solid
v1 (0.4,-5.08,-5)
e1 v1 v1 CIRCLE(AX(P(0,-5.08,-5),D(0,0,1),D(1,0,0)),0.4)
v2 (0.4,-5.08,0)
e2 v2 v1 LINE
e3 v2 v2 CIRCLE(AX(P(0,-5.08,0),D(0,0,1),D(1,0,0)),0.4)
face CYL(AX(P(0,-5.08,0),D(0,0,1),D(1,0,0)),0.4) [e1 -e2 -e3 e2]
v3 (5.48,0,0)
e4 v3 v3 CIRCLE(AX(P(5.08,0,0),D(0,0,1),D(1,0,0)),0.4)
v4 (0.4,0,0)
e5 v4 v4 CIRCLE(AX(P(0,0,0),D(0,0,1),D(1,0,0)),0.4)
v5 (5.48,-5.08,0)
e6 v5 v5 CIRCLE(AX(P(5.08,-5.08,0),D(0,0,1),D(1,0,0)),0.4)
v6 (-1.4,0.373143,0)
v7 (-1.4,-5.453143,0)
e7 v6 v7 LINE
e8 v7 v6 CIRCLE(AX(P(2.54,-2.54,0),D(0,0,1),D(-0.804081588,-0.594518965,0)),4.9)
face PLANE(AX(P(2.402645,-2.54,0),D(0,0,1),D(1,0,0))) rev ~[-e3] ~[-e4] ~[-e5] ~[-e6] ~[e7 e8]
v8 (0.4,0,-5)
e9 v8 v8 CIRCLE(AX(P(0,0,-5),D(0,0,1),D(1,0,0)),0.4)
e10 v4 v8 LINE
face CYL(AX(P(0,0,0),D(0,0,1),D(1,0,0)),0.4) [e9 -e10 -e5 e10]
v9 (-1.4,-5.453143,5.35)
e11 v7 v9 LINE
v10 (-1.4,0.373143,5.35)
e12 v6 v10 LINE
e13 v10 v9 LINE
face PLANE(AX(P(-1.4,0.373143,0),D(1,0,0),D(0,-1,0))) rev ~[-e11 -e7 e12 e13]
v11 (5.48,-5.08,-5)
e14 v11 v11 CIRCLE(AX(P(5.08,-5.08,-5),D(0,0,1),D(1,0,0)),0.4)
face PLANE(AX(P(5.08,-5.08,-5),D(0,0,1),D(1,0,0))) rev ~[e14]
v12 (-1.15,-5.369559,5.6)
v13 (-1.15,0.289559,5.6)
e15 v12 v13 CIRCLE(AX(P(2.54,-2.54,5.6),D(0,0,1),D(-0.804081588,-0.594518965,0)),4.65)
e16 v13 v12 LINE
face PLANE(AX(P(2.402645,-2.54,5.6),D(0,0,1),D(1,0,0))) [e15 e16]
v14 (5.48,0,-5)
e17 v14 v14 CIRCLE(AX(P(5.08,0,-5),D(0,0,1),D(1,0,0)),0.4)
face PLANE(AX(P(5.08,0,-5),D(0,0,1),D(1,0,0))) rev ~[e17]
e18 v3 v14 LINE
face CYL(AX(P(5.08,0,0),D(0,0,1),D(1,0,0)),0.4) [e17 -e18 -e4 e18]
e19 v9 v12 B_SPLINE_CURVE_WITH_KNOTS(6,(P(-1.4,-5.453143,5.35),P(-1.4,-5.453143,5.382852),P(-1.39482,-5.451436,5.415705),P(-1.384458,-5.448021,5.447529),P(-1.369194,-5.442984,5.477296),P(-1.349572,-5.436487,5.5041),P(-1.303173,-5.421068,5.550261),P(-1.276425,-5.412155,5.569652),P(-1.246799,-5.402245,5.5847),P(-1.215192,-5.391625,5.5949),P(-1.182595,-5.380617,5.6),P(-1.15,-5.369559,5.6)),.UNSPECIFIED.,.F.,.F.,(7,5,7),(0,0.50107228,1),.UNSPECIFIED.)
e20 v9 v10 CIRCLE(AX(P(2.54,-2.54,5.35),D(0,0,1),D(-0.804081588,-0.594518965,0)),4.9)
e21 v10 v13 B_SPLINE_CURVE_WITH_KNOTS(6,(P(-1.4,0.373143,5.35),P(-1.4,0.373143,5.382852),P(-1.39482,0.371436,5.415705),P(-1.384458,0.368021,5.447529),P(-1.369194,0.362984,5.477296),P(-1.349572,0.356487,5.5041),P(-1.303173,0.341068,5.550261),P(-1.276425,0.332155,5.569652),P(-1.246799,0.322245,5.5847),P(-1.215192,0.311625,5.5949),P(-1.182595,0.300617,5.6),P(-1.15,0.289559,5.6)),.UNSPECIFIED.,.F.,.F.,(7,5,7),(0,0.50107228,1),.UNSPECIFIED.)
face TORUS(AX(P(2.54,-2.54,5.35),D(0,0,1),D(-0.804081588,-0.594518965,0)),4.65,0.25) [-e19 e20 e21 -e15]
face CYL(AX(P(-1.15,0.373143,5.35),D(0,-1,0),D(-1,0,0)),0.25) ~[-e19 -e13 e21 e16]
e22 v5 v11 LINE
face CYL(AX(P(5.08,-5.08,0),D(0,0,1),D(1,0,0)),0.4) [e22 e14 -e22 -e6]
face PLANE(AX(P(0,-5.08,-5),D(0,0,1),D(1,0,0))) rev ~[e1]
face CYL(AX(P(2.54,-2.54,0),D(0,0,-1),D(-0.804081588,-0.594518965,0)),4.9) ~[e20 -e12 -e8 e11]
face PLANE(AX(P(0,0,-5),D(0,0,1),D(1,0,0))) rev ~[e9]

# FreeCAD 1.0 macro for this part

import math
import FreeCAD as App
import Part
import Sketcher
from FreeCAD import Vector


def edges_at(feature, points):
    """Names of the edges that pass closest to the given points."""
    edges = feature.Shape.Edges
    near = lambda p: min(range(len(edges)), key=lambda i: edges[i].distToShape(Part.Vertex(*p))[0])
    return sorted({f"Edge{near(p) + 1}" for p in points})

doc = App.newDocument("Part")
params = doc.addObject("Spreadsheet::Sheet", "Params")
for row, (alias, value) in enumerate([
    ("sketch1_radius", "4.9 mm"),
    ("pad1_length", "5.6 mm"),
    ("fillet_radius", "0.25 mm"),
    ("sketch2_diameter", "0.8 mm"),
    ("pad2_length", "5 mm"),
], start=1):
    params.set(f"A{row}", alias)
    params.set(f"B{row}", "=" + value)
    params.setAlias(f"B{row}", alias)

body = doc.addObject("PartDesign::Body", "Body")

# Sketch on XY plane
sketch1 = body.newObject("Sketcher::SketchObject", "Sketch")
sketch1.AttachmentSupport = (doc.getObject("XY_Plane"), [""])
sketch1.MapMode = "FlatFace"
sketch1.addGeometry(Part.LineSegment(Vector(-1.4, 0.373143, 0), Vector(-1.4, -5.453143, 0)), False)
sketch1.addGeometry(Part.ArcOfCircle(Part.Circle(Vector(2.54, -2.54, 0), Vector(0, 0, 1), 4.9), math.radians(-143.521652), math.radians(143.521652)), False)
sketch1.addConstraint(Sketcher.Constraint("Coincident", 0, 1, 1, 2))
sketch1.addConstraint(Sketcher.Constraint("Coincident", 1, 1, 0, 2))
sketch1.addConstraint(Sketcher.Constraint("Vertical", 0))
sketch1.addConstraint(Sketcher.Constraint("Radius", 1, 4.9))
sketch1.addConstraint(Sketcher.Constraint("DistanceX", 0, 1, -1, 1, 1.4))
sketch1.addConstraint(Sketcher.Constraint("DistanceX", -1, 1, 1, 3, 2.54))
sketch1.addConstraint(Sketcher.Constraint("DistanceY", 1, 3, -1, 1, 2.54))
sketch1.setExpression("Constraints[3]", "Params.sketch1_radius")
pad1 = body.newObject("PartDesign::Pad", "Pad")
pad1.Profile = sketch1
pad1.setExpression("Length", "Params.pad1_length")
doc.recompute()

fillet = body.newObject("PartDesign::Fillet", "Fillet")
fillet.Base = (pad1, edges_at(pad1, [(-1.4, -2.54, 5.6), (7.44, -2.54, 5.6)]))
fillet.setExpression("Radius", "Params.fillet_radius")
body2 = doc.addObject("PartDesign::Body", "Body001")
body2.AllowCompound = True

# Sketch on XY plane
sketch2 = body2.newObject("Sketcher::SketchObject", "Sketch001")
sketch2.AttachmentSupport = (doc.getObject("XY_Plane001"), [""])
sketch2.MapMode = "FlatFace"
sketch2.addGeometry(Part.Circle(Vector(0, 0, 0), Vector(0, 0, 1), 0.4), False)
sketch2.addGeometry(Part.Circle(Vector(5.08, 0, 0), Vector(0, 0, 1), 0.4), False)
sketch2.addGeometry(Part.Circle(Vector(5.08, -5.08, 0), Vector(0, 0, 1), 0.4), False)
sketch2.addGeometry(Part.Circle(Vector(0, -5.08, 0), Vector(0, 0, 1), 0.4), False)
sketch2.addConstraint(Sketcher.Constraint("Coincident", 0, 3, -1, 1))
sketch2.addConstraint(Sketcher.Constraint("Equal", 0, 1))
sketch2.addConstraint(Sketcher.Constraint("Equal", 1, 2))
sketch2.addConstraint(Sketcher.Constraint("Equal", 2, 3))
sketch2.addConstraint(Sketcher.Constraint("PointOnObject", 1, 3, -1))
sketch2.addConstraint(Sketcher.Constraint("PointOnObject", 3, 3, -2))
sketch2.addConstraint(Sketcher.Constraint("Horizontal", 2, 3, 3, 3))
sketch2.addConstraint(Sketcher.Constraint("Vertical", 1, 3, 2, 3))
sketch2.addConstraint(Sketcher.Constraint("Diameter", 0, 0.8))
sketch2.addConstraint(Sketcher.Constraint("DistanceX", -1, 1, 1, 3, 5.08))
sketch2.addConstraint(Sketcher.Constraint("DistanceY", 2, 3, -1, 1, 5.08))
sketch2.setExpression("Constraints[8]", "Params.sketch2_diameter")
pad2 = body2.newObject("PartDesign::Pad", "Pad001")
pad2.Profile = sketch2
pad2.setExpression("Length", "Params.pad2_length")
pad2.Reversed = True
doc.recompute()

boolean = body2.newObject("PartDesign::Boolean", "Boolean")
boolean.Type = "Fuse"
boolean.addObjects([body])

doc.recompute()
